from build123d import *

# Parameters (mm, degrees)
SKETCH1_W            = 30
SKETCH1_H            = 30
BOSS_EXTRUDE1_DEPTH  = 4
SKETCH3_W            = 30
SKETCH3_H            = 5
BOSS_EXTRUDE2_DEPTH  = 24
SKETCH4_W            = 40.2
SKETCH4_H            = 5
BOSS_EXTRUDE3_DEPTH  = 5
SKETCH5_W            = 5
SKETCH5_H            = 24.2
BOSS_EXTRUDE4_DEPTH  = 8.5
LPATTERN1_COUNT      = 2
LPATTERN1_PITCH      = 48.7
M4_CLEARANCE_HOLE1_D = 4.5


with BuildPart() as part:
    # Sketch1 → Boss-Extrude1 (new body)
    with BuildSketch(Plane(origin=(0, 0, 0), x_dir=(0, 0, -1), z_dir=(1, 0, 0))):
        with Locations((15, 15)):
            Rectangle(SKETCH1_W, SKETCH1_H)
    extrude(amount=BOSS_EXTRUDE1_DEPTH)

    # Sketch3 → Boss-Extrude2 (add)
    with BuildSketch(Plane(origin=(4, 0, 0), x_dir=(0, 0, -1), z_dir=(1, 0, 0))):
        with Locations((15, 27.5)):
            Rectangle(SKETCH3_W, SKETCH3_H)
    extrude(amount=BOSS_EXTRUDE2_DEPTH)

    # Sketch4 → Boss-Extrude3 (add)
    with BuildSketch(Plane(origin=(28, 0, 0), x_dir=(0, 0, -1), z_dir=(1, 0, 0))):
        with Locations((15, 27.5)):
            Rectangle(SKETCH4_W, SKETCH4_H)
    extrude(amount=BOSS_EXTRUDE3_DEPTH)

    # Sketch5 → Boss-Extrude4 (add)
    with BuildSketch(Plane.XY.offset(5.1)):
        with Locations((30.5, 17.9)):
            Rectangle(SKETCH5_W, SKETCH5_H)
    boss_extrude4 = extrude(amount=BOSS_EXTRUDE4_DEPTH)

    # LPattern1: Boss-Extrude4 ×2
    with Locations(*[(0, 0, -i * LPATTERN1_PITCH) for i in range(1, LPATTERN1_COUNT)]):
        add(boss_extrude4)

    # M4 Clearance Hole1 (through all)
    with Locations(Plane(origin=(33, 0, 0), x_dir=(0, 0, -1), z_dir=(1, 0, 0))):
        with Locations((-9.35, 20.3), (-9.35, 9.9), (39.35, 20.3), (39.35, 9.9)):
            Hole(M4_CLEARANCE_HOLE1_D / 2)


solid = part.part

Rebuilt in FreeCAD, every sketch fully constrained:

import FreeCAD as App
import Part
import Sketcher

V = App.Vector


def add_polygon(sketch, points):
    """Adds a closed chain of lines whose ends are joined by coincident constraints."""
    first, n = sketch.GeometryCount, len(points)
    for a, b in zip(points, points[1:] + points[:1]):
        sketch.addGeometry(Part.LineSegment(App.Vector(*a, 0), App.Vector(*b, 0)), False)
    for i in range(n):
        sketch.addConstraint(Sketcher.Constraint("Coincident", first + i, 2, first + (i + 1) % n, 1))

doc = App.newDocument("Part")
body = doc.addObject("PartDesign::Body", "Body")

# Sketch on YZ plane
sketch1 = body.newObject("Sketcher::SketchObject", "Sketch")
sketch1.AttachmentSupport = (doc.getObject("YZ_Plane"), [""])
sketch1.MapMode = "FlatFace"
add_polygon(sketch1, [(30, 0), (0, 0), (0, -30), (30, -30)])  # lines 0-3
sketch1.addConstraint(Sketcher.Constraint("Horizontal", 0))
sketch1.addConstraint(Sketcher.Constraint("Vertical", 1))
sketch1.addConstraint(Sketcher.Constraint("Horizontal", 2))
sketch1.addConstraint(Sketcher.Constraint("Vertical", 3))
sketch1.addConstraint(Sketcher.Constraint("Coincident", 0, 2, -1, 1))
sketch1.addConstraint(Sketcher.Constraint("Equal", 2, 1))
sketch1.addConstraint(Sketcher.Constraint("DistanceX", 0, 2, 0, 1, 30.0))
pad1 = body.newObject("PartDesign::Pad", "Pad")
pad1.Profile = sketch1
pad1.Length = 4

# Sketch on YZ plane
sketch2 = body.newObject("Sketcher::SketchObject", "Sketch001")
sketch2.AttachmentSupport = (doc.getObject("YZ_Plane"), [""])
sketch2.MapMode = "FlatFace"
sketch2.AttachmentOffset = App.Placement(V(0, 0, 4), App.Rotation())
add_polygon(sketch2, [(30, 0), (25, 0), (25, -30), (30, -30)])  # lines 0-3
sketch2.addConstraint(Sketcher.Constraint("Horizontal", 0))
sketch2.addConstraint(Sketcher.Constraint("Vertical", 1))
sketch2.addConstraint(Sketcher.Constraint("Horizontal", 2))
sketch2.addConstraint(Sketcher.Constraint("Vertical", 3))
sketch2.addConstraint(Sketcher.Constraint("PointOnObject", 0, 2, -1))
sketch2.addConstraint(Sketcher.Constraint("DistanceX", 0, 2, 0, 1, 5.0))
sketch2.addConstraint(Sketcher.Constraint("DistanceY", 1, 2, 1, 1, 30.0))
sketch2.addConstraint(Sketcher.Constraint("DistanceX", -1, 1, 0, 2, 25.0))
pad2 = body.newObject("PartDesign::Pad", "Pad001")
pad2.Profile = sketch2
pad2.Length = 24

# Sketch on YZ plane
sketch3 = body.newObject("Sketcher::SketchObject", "Sketch002")
sketch3.AttachmentSupport = (doc.getObject("YZ_Plane"), [""])
sketch3.MapMode = "FlatFace"
sketch3.AttachmentOffset = App.Placement(V(0, 0, 28), App.Rotation())
add_polygon(sketch3, [(30, 5), (25, 5), (25, -35), (30, -35)])  # lines 0-3
sketch3.addConstraint(Sketcher.Constraint("Horizontal", 0))
sketch3.addConstraint(Sketcher.Constraint("Vertical", 1))
sketch3.addConstraint(Sketcher.Constraint("Horizontal", 2))
sketch3.addConstraint(Sketcher.Constraint("Vertical", 3))
sketch3.addConstraint(Sketcher.Constraint("DistanceX", 0, 2, 0, 1, 5.0))
sketch3.addConstraint(Sketcher.Constraint("DistanceY", 1, 2, 1, 1, 40.2))
sketch3.addConstraint(Sketcher.Constraint("DistanceX", -1, 1, 0, 2, 25.0))
sketch3.addConstraint(Sketcher.Constraint("DistanceY", -1, 1, 0, 2, 5.1))
pad3 = body.newObject("PartDesign::Pad", "Pad002")
pad3.Profile = sketch3
pad3.Length = 5

# Sketch on XY plane
sketch4 = body.newObject("Sketcher::SketchObject", "Sketch003")
sketch4.AttachmentSupport = (doc.getObject("XY_Plane"), [""])
sketch4.MapMode = "FlatFace"
sketch4.AttachmentOffset = App.Placement(V(0, 0, 5.1), App.Rotation())
add_polygon(sketch4, [(28, 30), (28, 6), (33, 6), (33, 30)])  # lines 0-3
sketch4.addConstraint(Sketcher.Constraint("Vertical", 0))
sketch4.addConstraint(Sketcher.Constraint("Horizontal", 1))
sketch4.addConstraint(Sketcher.Constraint("Vertical", 2))
sketch4.addConstraint(Sketcher.Constraint("Horizontal", 3))
sketch4.addConstraint(Sketcher.Constraint("DistanceX", 1, 1, 1, 2, 5.0))
sketch4.addConstraint(Sketcher.Constraint("DistanceY", 0, 2, 0, 1, 24.2))
sketch4.addConstraint(Sketcher.Constraint("DistanceX", -1, 1, 0, 2, 28.0))
sketch4.addConstraint(Sketcher.Constraint("DistanceY", -1, 1, 2, 2, 30.0))
pad4 = body.newObject("PartDesign::Pad", "Pad003")
pad4.Profile = sketch4
pad4.Length = 8.5
doc.recompute()

linearpattern = body.newObject("PartDesign::LinearPattern", "LinearPattern")
linearpattern.Originals = [pad4]
linearpattern.Direction = (doc.getObject("Z_Axis"), [""])
linearpattern.Mode = "offset"
linearpattern.Offset = 48.7
linearpattern.Occurrences = 2
linearpattern.Reversed = True
body.Tip = linearpattern

# Sketch on YZ plane
sketch5 = body.newObject("Sketcher::SketchObject", "Sketch004")
sketch5.AttachmentSupport = (doc.getObject("YZ_Plane"), [""])
sketch5.MapMode = "FlatFace"
sketch5.AttachmentOffset = App.Placement(V(0, 0, 33), App.Rotation())
sketch5.addGeometry(Part.Circle(V(20.3, 9.3, 0), V(0, 0, 1), 2.2), False)
sketch5.addGeometry(Part.Circle(V(9.9, 9.3, 0), V(0, 0, 1), 2.2), False)
sketch5.addGeometry(Part.Circle(V(20.3, -39.4, 0), V(0, 0, 1), 2.2), False)
sketch5.addGeometry(Part.Circle(V(9.9, -39.4, 0), V(0, 0, 1), 2.2), False)
sketch5.addConstraint(Sketcher.Constraint("Equal", 0, 1))
sketch5.addConstraint(Sketcher.Constraint("Equal", 1, 2))
sketch5.addConstraint(Sketcher.Constraint("Equal", 2, 3))
sketch5.addConstraint(Sketcher.Constraint("Horizontal", 0, 3, 1, 3))
sketch5.addConstraint(Sketcher.Constraint("Horizontal", 2, 3, 3, 3))
sketch5.addConstraint(Sketcher.Constraint("Vertical", 0, 3, 2, 3))
sketch5.addConstraint(Sketcher.Constraint("Vertical", 1, 3, 3, 3))
sketch5.addConstraint(Sketcher.Constraint("Diameter", 0, 4.5))
sketch5.addConstraint(Sketcher.Constraint("DistanceX", -1, 1, 0, 3, 20.3))
sketch5.addConstraint(Sketcher.Constraint("DistanceX", -1, 1, 1, 3, 9.9))
sketch5.addConstraint(Sketcher.Constraint("DistanceY", 2, 3, 0, 3, 48.7))
sketch5.addConstraint(Sketcher.Constraint("DistanceY", -1, 1, 0, 3, 9.35))
doc.recompute()
hole = body.newObject("PartDesign::Hole", "Hole")
hole.Profile = sketch5
hole.ThreadType = "None"
hole.Diameter = 4.5
hole.DepthType = "ThroughAll"

doc.recompute()
